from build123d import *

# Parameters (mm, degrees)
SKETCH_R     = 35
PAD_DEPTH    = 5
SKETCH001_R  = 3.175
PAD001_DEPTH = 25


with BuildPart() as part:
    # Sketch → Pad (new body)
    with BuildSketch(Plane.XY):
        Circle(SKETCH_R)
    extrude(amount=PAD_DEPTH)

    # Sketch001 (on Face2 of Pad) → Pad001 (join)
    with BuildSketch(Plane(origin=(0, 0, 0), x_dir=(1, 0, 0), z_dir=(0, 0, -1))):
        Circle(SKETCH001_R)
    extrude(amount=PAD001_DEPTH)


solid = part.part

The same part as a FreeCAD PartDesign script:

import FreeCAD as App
import Part
import Sketcher

doc = App.newDocument("Part")
body = doc.addObject("PartDesign::Body", "Body")

sketch1 = body.newObject("Sketcher::SketchObject", "Sketch")
sketch1.AttachmentSupport = (doc.getObject("XY_Plane"), [""])
sketch1.MapMode = "FlatFace"
sketch1.addGeometry(Part.Circle(App.Vector(0, 0, 0), App.Vector(0, 0, 1), 35), False)
sketch1.addConstraint([
    Sketcher.Constraint("Coincident", 0, 3, -1, 1),
    Sketcher.Constraint("Diameter", 0, 70.0),
])
pad1 = body.newObject("PartDesign::Pad", "Pad")
pad1.Profile = sketch1
pad1.Length = 5

sketch2 = body.newObject("Sketcher::SketchObject", "Sketch001")
sketch2.AttachmentSupport = (doc.getObject("XY_Plane"), [""])
sketch2.MapMode = "FlatFace"
sketch2.addGeometry(Part.Circle(App.Vector(0, 0, 0), App.Vector(0, 0, 1), 3.2), False)
sketch2.addConstraint([
    Sketcher.Constraint("Coincident", 0, 3, -1, 1),
    Sketcher.Constraint("Diameter", 0, 6.35),
])
pad2 = body.newObject("PartDesign::Pad", "Pad001")
pad2.Profile = sketch2
pad2.Length = 25
pad2.Reversed = True

doc.recompute()
